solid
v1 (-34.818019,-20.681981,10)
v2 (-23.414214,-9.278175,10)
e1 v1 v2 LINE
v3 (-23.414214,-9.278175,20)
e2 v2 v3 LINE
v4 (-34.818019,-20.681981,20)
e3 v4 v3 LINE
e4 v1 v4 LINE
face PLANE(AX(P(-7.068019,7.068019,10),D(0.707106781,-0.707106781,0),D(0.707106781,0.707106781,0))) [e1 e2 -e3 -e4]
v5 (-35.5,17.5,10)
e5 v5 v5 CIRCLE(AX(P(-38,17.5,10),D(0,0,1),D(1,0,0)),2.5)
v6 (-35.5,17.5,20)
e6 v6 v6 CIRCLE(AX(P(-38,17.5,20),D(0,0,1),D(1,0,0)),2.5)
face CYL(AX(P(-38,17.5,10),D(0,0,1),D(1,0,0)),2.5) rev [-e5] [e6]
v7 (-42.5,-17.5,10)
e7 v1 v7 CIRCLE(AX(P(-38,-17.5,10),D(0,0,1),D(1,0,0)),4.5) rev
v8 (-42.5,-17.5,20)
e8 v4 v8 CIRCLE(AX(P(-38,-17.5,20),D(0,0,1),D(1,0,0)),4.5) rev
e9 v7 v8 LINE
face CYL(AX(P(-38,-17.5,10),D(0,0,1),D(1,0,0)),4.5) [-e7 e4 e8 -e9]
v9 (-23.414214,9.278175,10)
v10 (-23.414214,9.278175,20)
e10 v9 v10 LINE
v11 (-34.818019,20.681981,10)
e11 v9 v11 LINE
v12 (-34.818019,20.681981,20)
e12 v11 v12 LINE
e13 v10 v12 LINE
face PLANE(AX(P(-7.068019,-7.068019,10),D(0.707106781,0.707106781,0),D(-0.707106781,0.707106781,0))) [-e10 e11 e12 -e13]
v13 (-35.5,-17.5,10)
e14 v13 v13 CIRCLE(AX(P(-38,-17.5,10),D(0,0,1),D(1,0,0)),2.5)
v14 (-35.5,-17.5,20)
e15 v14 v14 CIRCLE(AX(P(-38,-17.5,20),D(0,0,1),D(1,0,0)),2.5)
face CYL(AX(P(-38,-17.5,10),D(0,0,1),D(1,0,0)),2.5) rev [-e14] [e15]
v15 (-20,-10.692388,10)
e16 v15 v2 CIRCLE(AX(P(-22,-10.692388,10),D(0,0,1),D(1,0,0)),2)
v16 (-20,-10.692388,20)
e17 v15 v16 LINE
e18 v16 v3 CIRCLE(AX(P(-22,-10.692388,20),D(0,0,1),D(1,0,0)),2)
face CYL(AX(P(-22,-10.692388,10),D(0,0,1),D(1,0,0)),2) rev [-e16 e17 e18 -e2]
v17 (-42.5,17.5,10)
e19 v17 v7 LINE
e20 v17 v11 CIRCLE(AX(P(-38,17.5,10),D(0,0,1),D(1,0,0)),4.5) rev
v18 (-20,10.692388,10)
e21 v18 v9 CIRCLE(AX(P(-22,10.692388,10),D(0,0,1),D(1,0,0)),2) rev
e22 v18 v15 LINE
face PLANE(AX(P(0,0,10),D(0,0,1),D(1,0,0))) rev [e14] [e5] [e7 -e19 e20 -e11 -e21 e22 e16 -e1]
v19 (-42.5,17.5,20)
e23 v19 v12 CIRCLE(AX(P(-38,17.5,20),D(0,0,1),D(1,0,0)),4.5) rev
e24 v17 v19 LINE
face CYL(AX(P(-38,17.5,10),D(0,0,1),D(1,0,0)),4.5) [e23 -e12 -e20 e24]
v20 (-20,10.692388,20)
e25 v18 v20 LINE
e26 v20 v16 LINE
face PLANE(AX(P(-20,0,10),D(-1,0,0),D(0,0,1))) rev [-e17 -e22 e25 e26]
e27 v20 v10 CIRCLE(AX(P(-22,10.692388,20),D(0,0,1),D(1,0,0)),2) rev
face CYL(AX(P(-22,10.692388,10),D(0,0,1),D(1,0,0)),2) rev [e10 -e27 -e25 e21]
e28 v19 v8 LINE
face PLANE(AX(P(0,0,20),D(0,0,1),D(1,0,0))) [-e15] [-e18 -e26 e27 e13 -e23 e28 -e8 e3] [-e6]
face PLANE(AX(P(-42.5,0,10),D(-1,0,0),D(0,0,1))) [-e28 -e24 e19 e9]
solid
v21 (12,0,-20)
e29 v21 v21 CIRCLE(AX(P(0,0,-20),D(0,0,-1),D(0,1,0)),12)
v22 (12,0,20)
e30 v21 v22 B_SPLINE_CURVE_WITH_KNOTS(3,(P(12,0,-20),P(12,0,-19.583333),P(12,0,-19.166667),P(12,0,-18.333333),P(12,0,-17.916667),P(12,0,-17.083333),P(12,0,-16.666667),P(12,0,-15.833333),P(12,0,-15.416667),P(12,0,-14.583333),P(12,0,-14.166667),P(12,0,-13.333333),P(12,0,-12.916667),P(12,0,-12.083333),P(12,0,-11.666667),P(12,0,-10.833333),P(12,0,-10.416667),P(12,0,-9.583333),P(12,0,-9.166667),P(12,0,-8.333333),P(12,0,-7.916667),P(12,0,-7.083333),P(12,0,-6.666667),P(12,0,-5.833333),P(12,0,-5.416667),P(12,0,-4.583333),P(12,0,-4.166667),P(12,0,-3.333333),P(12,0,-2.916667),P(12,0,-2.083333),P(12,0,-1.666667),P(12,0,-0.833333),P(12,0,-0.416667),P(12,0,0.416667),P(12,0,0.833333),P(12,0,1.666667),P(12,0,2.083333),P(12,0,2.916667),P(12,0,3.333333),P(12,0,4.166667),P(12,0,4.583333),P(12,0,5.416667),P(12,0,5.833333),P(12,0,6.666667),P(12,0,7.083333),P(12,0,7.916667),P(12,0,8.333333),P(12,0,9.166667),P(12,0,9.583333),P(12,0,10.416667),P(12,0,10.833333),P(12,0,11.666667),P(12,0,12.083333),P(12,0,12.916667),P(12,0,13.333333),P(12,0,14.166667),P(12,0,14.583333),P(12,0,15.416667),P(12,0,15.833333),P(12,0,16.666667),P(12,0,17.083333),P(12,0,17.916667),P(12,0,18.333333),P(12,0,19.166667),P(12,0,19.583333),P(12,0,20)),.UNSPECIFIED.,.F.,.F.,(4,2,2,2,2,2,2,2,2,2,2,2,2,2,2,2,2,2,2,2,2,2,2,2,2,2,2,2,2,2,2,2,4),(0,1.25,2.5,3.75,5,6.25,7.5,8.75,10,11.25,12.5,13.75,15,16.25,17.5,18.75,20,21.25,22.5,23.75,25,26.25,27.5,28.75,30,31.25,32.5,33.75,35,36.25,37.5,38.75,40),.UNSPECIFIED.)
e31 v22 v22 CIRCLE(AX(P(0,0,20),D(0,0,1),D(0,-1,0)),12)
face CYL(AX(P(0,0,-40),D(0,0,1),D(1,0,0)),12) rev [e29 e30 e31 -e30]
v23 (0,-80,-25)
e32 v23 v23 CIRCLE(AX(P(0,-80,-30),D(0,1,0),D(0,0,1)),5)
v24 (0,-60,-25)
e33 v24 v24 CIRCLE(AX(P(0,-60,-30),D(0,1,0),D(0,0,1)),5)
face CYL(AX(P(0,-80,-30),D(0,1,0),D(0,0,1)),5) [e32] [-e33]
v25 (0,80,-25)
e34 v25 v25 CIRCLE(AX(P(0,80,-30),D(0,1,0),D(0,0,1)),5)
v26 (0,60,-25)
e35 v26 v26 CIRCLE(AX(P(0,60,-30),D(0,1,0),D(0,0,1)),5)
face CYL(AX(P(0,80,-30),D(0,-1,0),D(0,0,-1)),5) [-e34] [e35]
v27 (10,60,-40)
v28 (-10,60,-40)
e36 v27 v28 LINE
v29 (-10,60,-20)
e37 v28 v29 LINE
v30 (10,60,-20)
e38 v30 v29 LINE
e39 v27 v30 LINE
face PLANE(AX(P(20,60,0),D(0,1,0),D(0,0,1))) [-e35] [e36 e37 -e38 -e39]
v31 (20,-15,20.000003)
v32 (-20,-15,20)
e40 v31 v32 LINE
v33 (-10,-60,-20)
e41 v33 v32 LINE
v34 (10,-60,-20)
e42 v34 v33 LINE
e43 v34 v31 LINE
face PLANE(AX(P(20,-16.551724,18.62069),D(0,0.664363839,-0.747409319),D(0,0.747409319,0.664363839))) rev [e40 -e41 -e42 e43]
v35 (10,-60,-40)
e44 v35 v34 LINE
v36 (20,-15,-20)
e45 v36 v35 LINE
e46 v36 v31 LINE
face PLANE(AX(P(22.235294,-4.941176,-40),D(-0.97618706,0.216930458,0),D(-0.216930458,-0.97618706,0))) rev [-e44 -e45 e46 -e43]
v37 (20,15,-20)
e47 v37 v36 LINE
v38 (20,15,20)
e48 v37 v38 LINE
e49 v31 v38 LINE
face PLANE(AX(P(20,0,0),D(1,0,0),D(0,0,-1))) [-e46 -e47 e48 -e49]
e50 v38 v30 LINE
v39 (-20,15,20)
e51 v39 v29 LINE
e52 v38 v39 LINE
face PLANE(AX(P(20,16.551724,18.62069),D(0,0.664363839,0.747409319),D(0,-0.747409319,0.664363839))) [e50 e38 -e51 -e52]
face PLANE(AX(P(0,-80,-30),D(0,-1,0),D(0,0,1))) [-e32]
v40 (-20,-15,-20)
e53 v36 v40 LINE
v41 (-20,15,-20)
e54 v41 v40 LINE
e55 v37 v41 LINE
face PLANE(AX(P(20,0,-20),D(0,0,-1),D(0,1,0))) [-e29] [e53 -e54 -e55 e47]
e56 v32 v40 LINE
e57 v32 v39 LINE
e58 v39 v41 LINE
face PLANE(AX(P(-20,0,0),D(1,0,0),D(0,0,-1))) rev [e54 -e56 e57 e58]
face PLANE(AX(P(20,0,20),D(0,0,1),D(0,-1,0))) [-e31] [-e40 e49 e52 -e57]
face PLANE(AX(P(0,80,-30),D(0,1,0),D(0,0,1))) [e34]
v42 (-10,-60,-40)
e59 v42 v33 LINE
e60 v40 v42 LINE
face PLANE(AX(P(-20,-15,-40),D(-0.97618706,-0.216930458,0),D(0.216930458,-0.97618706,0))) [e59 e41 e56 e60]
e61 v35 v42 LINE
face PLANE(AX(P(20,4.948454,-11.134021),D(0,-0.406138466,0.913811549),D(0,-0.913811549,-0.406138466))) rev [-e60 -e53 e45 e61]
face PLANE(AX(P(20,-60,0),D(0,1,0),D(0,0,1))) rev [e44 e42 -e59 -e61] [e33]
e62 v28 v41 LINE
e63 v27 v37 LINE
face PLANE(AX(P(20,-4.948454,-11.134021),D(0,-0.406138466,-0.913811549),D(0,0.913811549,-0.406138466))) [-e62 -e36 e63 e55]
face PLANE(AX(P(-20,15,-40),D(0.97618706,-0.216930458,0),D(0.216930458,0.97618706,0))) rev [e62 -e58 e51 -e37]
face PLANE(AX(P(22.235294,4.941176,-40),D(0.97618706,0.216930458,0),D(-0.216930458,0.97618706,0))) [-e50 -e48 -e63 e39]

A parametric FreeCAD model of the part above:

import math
import FreeCAD as App
import Part
import Sketcher

doc = App.newDocument("Part")
body = doc.addObject("PartDesign::Body", "Body")

sketch1 = doc.addObject("Sketcher::SketchObject", "Sketch")
body.addObject(sketch1)
sketch1.AttachmentSupport = (doc.YZ_Plane, [""])
sketch1.MapMode = "FlatFace"
sketch1.addGeometry([
    Part.LineSegment(App.Vector(15, -20, 0), App.Vector(60, -40, 0)),
    Part.LineSegment(App.Vector(60, -40, 0), App.Vector(60, -20, 0)),
    Part.LineSegment(App.Vector(60, -20, 0), App.Vector(15, 20, 0)),
    Part.LineSegment(App.Vector(15, 20, 0), App.Vector(-15, 20, 0)),
    Part.LineSegment(App.Vector(-15, 20, 0), App.Vector(-60, -20, 0)),
    Part.LineSegment(App.Vector(-60, -20, 0), App.Vector(-60, -40, 0)),
    Part.LineSegment(App.Vector(-60, -40, 0), App.Vector(-15, -20, 0)),
    Part.LineSegment(App.Vector(-15, -20, 0), App.Vector(15, -20, 0)),
], False)
sketch1.addConstraint([
    Sketcher.Constraint("Coincident", 0, 2, 1, 1),
    Sketcher.Constraint("Coincident", 1, 2, 2, 1),
    Sketcher.Constraint("Coincident", 2, 2, 3, 1),
    Sketcher.Constraint("Coincident", 3, 2, 4, 1),
    Sketcher.Constraint("Coincident", 4, 2, 5, 1),
    Sketcher.Constraint("Coincident", 5, 2, 6, 1),
    Sketcher.Constraint("Coincident", 6, 2, 7, 1),
    Sketcher.Constraint("Coincident", 7, 2, 0, 1),
    Sketcher.Constraint("Vertical", 1),
    Sketcher.Constraint("Horizontal", 3),
    Sketcher.Constraint("Vertical", 5),
    Sketcher.Constraint("Horizontal", 7),
    Sketcher.Constraint("Symmetric", 2, 2, 6, 2, -1, 1),
    Sketcher.Constraint("Symmetric", 1, 2, 4, 2, -2),
    Sketcher.Constraint("Horizontal", 0, 2, 5, 2),
    Sketcher.Constraint("Horizontal", 4, 2, 6, 2),
    Sketcher.Constraint("Vertical", 3, 2, 6, 2),
    Sketcher.Constraint("Vertical", 2, 2, 7, 2),
    Sketcher.Constraint("DistanceX", 3, 2, 3, 1, 30.0),
    Sketcher.Constraint("DistanceY", 1, 1, 1, 2, 20.0),
    Sketcher.Constraint("DistanceX", -1, 1, 0, 2, 60.0),
    Sketcher.Constraint("DistanceY", 0, 2, -1, 1, 40.0),
])
pad1 = doc.addObject("PartDesign::Pad", "Pad")
body.addObject(pad1)
pad1.Profile = sketch1
pad1.Length = 40
pad1.Midplane = True

sketch2 = doc.addObject("Sketcher::SketchObject", "Sketch001")
body.addObject(sketch2)
sketch2.AttachmentSupport = (doc.XY_Plane, [""])
sketch2.MapMode = "FlatFace"
sketch2.AttachmentOffset = App.Placement(App.Vector(0, 0, 20), App.Rotation())
sketch2.addGeometry(Part.Circle(App.Vector(0, 0, 0), App.Vector(0, 0, 1), 12), False)
sketch2.addConstraint([
    Sketcher.Constraint("Coincident", 0, 3, -1, 1),
    Sketcher.Constraint("Diameter", 0, 24.0),
])
pocket1 = doc.addObject("PartDesign::Pocket", "Pocket")
body.addObject(pocket1)
pocket1.Profile = sketch2
pocket1.Type = "ThroughAll"
pocket1.Midplane = True

sketch3 = doc.addObject("Sketcher::SketchObject", "Sketch002")
body.addObject(sketch3)
sketch3.AttachmentSupport = (doc.XZ_Plane, [""])
sketch3.MapMode = "FlatFace"
sketch3.AttachmentOffset = App.Placement(App.Vector(0, 0, -60), App.Rotation())
sketch3.addGeometry(Part.Circle(App.Vector(0, -30, 0), App.Vector(0, 0, 1), 5), False)
sketch3.addConstraint([
    Sketcher.Constraint("PointOnObject", 0, 3, -2),
    Sketcher.Constraint("Diameter", 0, 10.0),
    Sketcher.Constraint("DistanceY", 0, 3, -1, 1, 30.0),
])
pad2 = doc.addObject("PartDesign::Pad", "Pad001")
body.addObject(pad2)
pad2.Profile = sketch3
pad2.Length = 20
pad2.Reversed = True
doc.recompute()

mirrored = doc.addObject("PartDesign::Mirrored", "Mirrored")
body.addObject(mirrored)
mirrored.Originals = [pad2]
mirrored.MirrorPlane = (doc.XZ_Plane, [""])
body.Tip = mirrored

sketch4 = doc.addObject("Sketcher::SketchObject", "Sketch003")
body.addObject(sketch4)
sketch4.AttachmentSupport = (doc.XY_Plane, [""])
sketch4.MapMode = "FlatFace"
sketch4.AttachmentOffset = App.Placement(App.Vector(0, 0, 20), App.Rotation())
sketch4.addGeometry([
    Part.LineSegment(App.Vector(20, 15, 0), App.Vector(20, 60, 0)),
    Part.LineSegment(App.Vector(20, 60, 0), App.Vector(10, 60, 0)),
    Part.LineSegment(App.Vector(10, 60, 0), App.Vector(20, 15, 0)),
    Part.LineSegment(App.Vector(-20, 60, 0), App.Vector(-20, 15, 0)),
    Part.LineSegment(App.Vector(-20, 15, 0), App.Vector(-10, 60, 0)),
    Part.LineSegment(App.Vector(-10, 60, 0), App.Vector(-20, 60, 0)),
], False)
sketch4.addConstraint([
    Sketcher.Constraint("Coincident", 0, 2, 1, 1),
    Sketcher.Constraint("Coincident", 1, 2, 2, 1),
    Sketcher.Constraint("Coincident", 2, 2, 0, 1),
    Sketcher.Constraint("Coincident", 3, 2, 4, 1),
    Sketcher.Constraint("Coincident", 4, 2, 5, 1),
    Sketcher.Constraint("Coincident", 5, 2, 3, 1),
    Sketcher.Constraint("Vertical", 0),
    Sketcher.Constraint("Horizontal", 1),
    Sketcher.Constraint("Vertical", 3),
    Sketcher.Constraint("Horizontal", 5),
    Sketcher.Constraint("Symmetric", 2, 2, 3, 2, -2),
    Sketcher.Constraint("Symmetric", 1, 2, 4, 2, -2),
    Sketcher.Constraint("DistanceX", 1, 2, 1, 1, 10.0),
    Sketcher.Constraint("DistanceY", 0, 1, 0, 2, 45.0),
    Sketcher.Constraint("DistanceX", -1, 1, 0, 2, 20.0),
    Sketcher.Constraint("DistanceY", -1, 1, 0, 2, 60.0),
])
pocket2 = doc.addObject("PartDesign::Pocket", "Pocket001")
body.addObject(pocket2)
pocket2.Profile = sketch4
pocket2.Length = 219.313138
pocket2.Midplane = True
doc.recompute()

mirrored2 = doc.addObject("PartDesign::Mirrored", "Mirrored001")
body.addObject(mirrored2)
mirrored2.Originals = [pocket2]
mirrored2.MirrorPlane = (doc.XZ_Plane, [""])
body.Tip = mirrored2
body2 = doc.addObject("PartDesign::Body", "Body001")

sketch5 = doc.addObject("Sketcher::SketchObject", "Sketch004")
body2.addObject(sketch5)
sketch5.AttachmentSupport = (doc.getObject("XY_Plane001"), [""])
sketch5.MapMode = "FlatFace"
sketch5.AttachmentOffset = App.Placement(App.Vector(0, 0, 20), App.Rotation())
sketch5.addGeometry([
    Part.ArcOfCircle(Part.Circle(App.Vector(-22, 10.7, 0), App.Vector(0, 0, 1), 2), math.radians(-135), math.radians(0)),
    Part.LineSegment(App.Vector(-23.4, 9.3, 0), App.Vector(-34.8, 20.7, 0)),
    Part.ArcOfCircle(Part.Circle(App.Vector(-38, 17.5, 0), App.Vector(0, 0, 1), 4.5), math.radians(45), math.radians(180)),
    Part.LineSegment(App.Vector(-42.5, 17.5, 0), App.Vector(-42.5, -17.5, 0)),
    Part.ArcOfCircle(Part.Circle(App.Vector(-38, -17.5, 0), App.Vector(0, 0, 1), 4.5), math.radians(180), math.radians(315)),
    Part.LineSegment(App.Vector(-34.8, -20.7, 0), App.Vector(-23.4, -9.3, 0)),
    Part.ArcOfCircle(Part.Circle(App.Vector(-22, -10.7, 0), App.Vector(0, 0, 1), 2), math.radians(0), math.radians(135)),
    Part.LineSegment(App.Vector(-20, -10.7, 0), App.Vector(-20, 10.7, 0)),
    Part.Circle(App.Vector(-38, -17.5, 0), App.Vector(0, 0, 1), 2.5),
    Part.Circle(App.Vector(-38, 17.5, 0), App.Vector(0, 0, 1), 2.5),
], False)
sketch5.addConstraint([
    Sketcher.Constraint("Tangent", 0, 1, 1, 1),
    Sketcher.Constraint("Tangent", 1, 2, 2, 1),
    Sketcher.Constraint("Tangent", 2, 2, 3, 1),
    Sketcher.Constraint("Tangent", 3, 2, 4, 1),
    Sketcher.Constraint("Tangent", 4, 2, 5, 1),
    Sketcher.Constraint("Tangent", 5, 2, 6, 2),
    Sketcher.Constraint("Tangent", 6, 1, 7, 1),
    Sketcher.Constraint("Tangent", 7, 2, 0, 2),
    Sketcher.Constraint("Vertical", 3),
    Sketcher.Constraint("Vertical", 7),
    Sketcher.Constraint("Coincident", 8, 3, 4, 3),
    Sketcher.Constraint("Coincident", 9, 3, 2, 3),
    Sketcher.Constraint("Equal", 2, 4),
    Sketcher.Constraint("Equal", 0, 6),
    Sketcher.Constraint("Equal", 8, 9),
    Sketcher.Constraint("Symmetric", 1, 2, 4, 2, -1),
    Sketcher.Constraint("Perpendicular", 1, 5),
    Sketcher.Constraint("Diameter", 8, 5.0),
    Sketcher.Constraint("Radius", 0, 2.0),
    Sketcher.Constraint("Radius", 2, 4.5),
    Sketcher.Constraint("DistanceY", 3, 2, 3, 1, 35.0),
    Sketcher.Constraint("DistanceX", 0, 3, -1, 1, 22.0),
    Sketcher.Constraint("DistanceX", 2, 3, -1, 1, 38.0),
])
pad3 = doc.addObject("PartDesign::Pad", "Pad002")
body2.addObject(pad3)
pad3.Profile = sketch5
pad3.Length = 10
pad3.Reversed = True

doc.recompute()
